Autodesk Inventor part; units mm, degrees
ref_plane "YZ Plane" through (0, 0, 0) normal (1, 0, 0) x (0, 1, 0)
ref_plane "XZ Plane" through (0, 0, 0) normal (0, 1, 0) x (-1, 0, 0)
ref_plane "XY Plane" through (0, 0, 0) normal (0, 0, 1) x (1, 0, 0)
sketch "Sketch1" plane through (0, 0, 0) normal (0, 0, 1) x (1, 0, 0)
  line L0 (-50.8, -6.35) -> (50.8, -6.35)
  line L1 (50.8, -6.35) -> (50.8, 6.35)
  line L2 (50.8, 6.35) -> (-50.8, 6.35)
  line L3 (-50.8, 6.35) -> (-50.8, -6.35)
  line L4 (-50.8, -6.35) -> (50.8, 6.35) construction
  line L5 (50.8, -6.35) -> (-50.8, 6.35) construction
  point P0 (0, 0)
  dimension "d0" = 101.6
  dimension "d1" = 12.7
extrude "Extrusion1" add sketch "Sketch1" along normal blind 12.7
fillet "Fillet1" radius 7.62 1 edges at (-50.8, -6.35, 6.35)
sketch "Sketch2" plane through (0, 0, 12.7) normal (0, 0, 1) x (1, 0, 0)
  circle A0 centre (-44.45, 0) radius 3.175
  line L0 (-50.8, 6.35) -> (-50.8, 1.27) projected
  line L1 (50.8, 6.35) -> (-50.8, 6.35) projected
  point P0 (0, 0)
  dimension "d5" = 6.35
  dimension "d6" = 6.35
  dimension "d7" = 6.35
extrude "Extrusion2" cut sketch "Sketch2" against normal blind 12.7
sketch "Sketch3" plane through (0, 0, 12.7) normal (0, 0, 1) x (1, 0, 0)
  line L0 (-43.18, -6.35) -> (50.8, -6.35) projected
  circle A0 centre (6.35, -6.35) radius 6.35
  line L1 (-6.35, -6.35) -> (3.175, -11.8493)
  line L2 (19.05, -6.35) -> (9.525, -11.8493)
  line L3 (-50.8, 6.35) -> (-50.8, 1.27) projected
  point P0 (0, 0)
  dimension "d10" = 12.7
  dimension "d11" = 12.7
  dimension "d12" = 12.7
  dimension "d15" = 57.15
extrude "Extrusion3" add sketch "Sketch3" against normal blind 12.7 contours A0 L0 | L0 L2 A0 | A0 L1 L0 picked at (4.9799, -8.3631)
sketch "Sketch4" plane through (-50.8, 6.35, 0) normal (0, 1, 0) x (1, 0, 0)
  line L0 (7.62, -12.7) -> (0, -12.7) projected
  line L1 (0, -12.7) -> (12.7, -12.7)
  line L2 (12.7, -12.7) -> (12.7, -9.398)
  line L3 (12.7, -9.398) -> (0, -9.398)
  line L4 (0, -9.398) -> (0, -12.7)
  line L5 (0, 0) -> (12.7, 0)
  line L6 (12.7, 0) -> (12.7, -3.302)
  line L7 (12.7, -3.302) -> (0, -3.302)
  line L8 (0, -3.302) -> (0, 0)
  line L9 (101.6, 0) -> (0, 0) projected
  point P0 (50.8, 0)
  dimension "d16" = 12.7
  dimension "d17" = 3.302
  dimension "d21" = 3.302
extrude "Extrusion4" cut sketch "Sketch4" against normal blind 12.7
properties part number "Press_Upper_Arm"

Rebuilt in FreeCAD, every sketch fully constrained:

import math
import FreeCAD as App
import Part
import Sketcher

V = App.Vector
Q = App.Units.Quantity


def edges_at(feature, points):
    """Names of the edges that pass closest to the given points."""
    edges = feature.Shape.Edges
    near = lambda p: min(range(len(edges)), key=lambda i: edges[i].distToShape(Part.Vertex(*p))[0])
    return sorted({f"Edge{near(p) + 1}" for p in points})

doc = App.newDocument("Part")
body = doc.addObject("PartDesign::Body", "Body")

# Sketch on XY plane
sketch1 = body.newObject("Sketcher::SketchObject", "Sketch")
sketch1.AttachmentSupport = (doc.getObject("XY_Plane"), [""])
sketch1.MapMode = "FlatFace"
sketch1.addGeometry(Part.LineSegment(V(-51, 6, 0), V(-51, -6, 0)), False)
sketch1.addGeometry(Part.LineSegment(V(-51, -6, 0), V(51, -6, 0)), False)
sketch1.addGeometry(Part.LineSegment(V(51, -6, 0), V(51, 6, 0)), False)
sketch1.addGeometry(Part.LineSegment(V(51, 6, 0), V(-51, 6, 0)), False)
sketch1.addConstraint(Sketcher.Constraint("Coincident", 0, 2, 1, 1))
sketch1.addConstraint(Sketcher.Constraint("Coincident", 1, 2, 2, 1))
sketch1.addConstraint(Sketcher.Constraint("Coincident", 2, 2, 3, 1))
sketch1.addConstraint(Sketcher.Constraint("Coincident", 3, 2, 0, 1))
sketch1.addConstraint(Sketcher.Constraint("Vertical", 0))
sketch1.addConstraint(Sketcher.Constraint("Horizontal", 1))
sketch1.addConstraint(Sketcher.Constraint("Vertical", 2))
sketch1.addConstraint(Sketcher.Constraint("Horizontal", 3))
sketch1.addConstraint(Sketcher.Constraint("Symmetric", 0, 2, 2, 2, -1, 1))
sketch1.addConstraint(Sketcher.Constraint("DistanceX", 1, 1, 1, 2, Q("4 in")))
sketch1.addConstraint(Sketcher.Constraint("DistanceY", 0, 2, 0, 1, Q("0.5 in")))
pad1 = body.newObject("PartDesign::Pad", "Pad")
pad1.Profile = sketch1
pad1.Length = Q("0.5 in")
doc.recompute()

fillet = body.newObject("PartDesign::Fillet", "Fillet")
fillet.Base = (pad1, edges_at(pad1, [(-50.8, -6.35, 6.35)]))
fillet.Radius = Q("0.3 in")

# Sketch on XY plane
sketch2 = body.newObject("Sketcher::SketchObject", "Sketch001")
sketch2.AttachmentSupport = (doc.getObject("XY_Plane"), [""])
sketch2.MapMode = "FlatFace"
sketch2.AttachmentOffset = App.Placement(V(0, 0, 0.5 * 25.4), App.Rotation())
sketch2.addGeometry(Part.Circle(V(-44.5, 0, 0), V(0, 0, 1), 3.2), False)
sketch2.addConstraint(Sketcher.Constraint("PointOnObject", 0, 3, -1))
sketch2.addConstraint(Sketcher.Constraint("Diameter", 0, Q("0.25 in")))
sketch2.addConstraint(Sketcher.Constraint("DistanceX", 0, 3, -1, 1, Q("1.75 in")))
pocket1 = body.newObject("PartDesign::Pocket", "Pocket")
pocket1.Profile = sketch2
pocket1.Length = Q("0.5 in")

# Sketch on XY plane
sketch3 = body.newObject("Sketcher::SketchObject", "Sketch002")
sketch3.AttachmentSupport = (doc.getObject("XY_Plane"), [""])
sketch3.MapMode = "FlatFace"
sketch3.AttachmentOffset = App.Placement(V(0, 0, 0.5 * 25.4), App.Rotation())
sketch3.addGeometry(Part.ArcOfCircle(Part.Circle(V(6, -6, 0), V(0, 0, 1), 6), math.radians(-120), math.radians(-60)), False)
sketch3.addGeometry(Part.LineSegment(V(10, -12, 0), V(19, -6, 0)), False)
sketch3.addGeometry(Part.LineSegment(V(19, -6, 0), V(-6, -6, 0)), False)
sketch3.addGeometry(Part.LineSegment(V(-6, -6, 0), V(3, -12, 0)), False)
sketch3.addConstraint(Sketcher.Constraint("Tangent", 0, 2, 1, 1))
sketch3.addConstraint(Sketcher.Constraint("Coincident", 1, 2, 2, 1))
sketch3.addConstraint(Sketcher.Constraint("Coincident", 2, 2, 3, 1))
sketch3.addConstraint(Sketcher.Constraint("Tangent", 3, 2, 0, 1))
sketch3.addConstraint(Sketcher.Constraint("Horizontal", 2))
sketch3.addConstraint(Sketcher.Constraint("Horizontal", 0, 3, 1, 2))
sketch3.addConstraint(Sketcher.Constraint("Horizontal", 0, 2, 3, 2))
sketch3.addConstraint(Sketcher.Constraint("Radius", 0, Q("0.25 in")))
sketch3.addConstraint(Sketcher.Constraint("DistanceX", 0, 3, 1, 2, Q("0.5 in")))
sketch3.addConstraint(Sketcher.Constraint("DistanceX", -1, 1, 0, 3, Q("0.25 in")))
sketch3.addConstraint(Sketcher.Constraint("DistanceY", 0, 3, -1, 1, Q("0.25 in")))
pad2 = body.newObject("PartDesign::Pad", "Pad001")
pad2.Profile = sketch3
pad2.Length = Q("0.5 in")
pad2.Reversed = True

# Sketch on XZ plane
sketch4 = body.newObject("Sketcher::SketchObject", "Sketch003")
sketch4.AttachmentSupport = (doc.getObject("XZ_Plane"), [""])
sketch4.MapMode = "FlatFace"
sketch4.AttachmentOffset = App.Placement(V(0, 0, -0.25 * 25.4), App.Rotation())
sketch4.addGeometry(Part.LineSegment(V(-50.8, 12.7, 0), V(-38.1, 12.7, 0)), False)
sketch4.addGeometry(Part.LineSegment(V(-38.1, 12.7, 0), V(-38.1, 9.4, 0)), False)
sketch4.addGeometry(Part.LineSegment(V(-38.1, 9.4, 0), V(-50.8, 9.4, 0)), False)
sketch4.addGeometry(Part.LineSegment(V(-50.8, 9.4, 0), V(-50.8, 12.7, 0)), False)
sketch4.addGeometry(Part.LineSegment(V(-38.1, 0, 0), V(-50.8, 0, 0)), False)
sketch4.addGeometry(Part.LineSegment(V(-50.8, 0, 0), V(-50.8, 3.3, 0)), False)
sketch4.addGeometry(Part.LineSegment(V(-50.8, 3.3, 0), V(-38.1, 3.3, 0)), False)
sketch4.addGeometry(Part.LineSegment(V(-38.1, 3.3, 0), V(-38.1, 0, 0)), False)
sketch4.addConstraint(Sketcher.Constraint("Coincident", 0, 2, 1, 1))
sketch4.addConstraint(Sketcher.Constraint("Coincident", 1, 2, 2, 1))
sketch4.addConstraint(Sketcher.Constraint("Coincident", 2, 2, 3, 1))
sketch4.addConstraint(Sketcher.Constraint("Coincident", 3, 2, 0, 1))
sketch4.addConstraint(Sketcher.Constraint("Coincident", 4, 2, 5, 1))
sketch4.addConstraint(Sketcher.Constraint("Coincident", 5, 2, 6, 1))
sketch4.addConstraint(Sketcher.Constraint("Coincident", 6, 2, 7, 1))
sketch4.addConstraint(Sketcher.Constraint("Coincident", 7, 2, 4, 1))
sketch4.addConstraint(Sketcher.Constraint("Horizontal", 0))
sketch4.addConstraint(Sketcher.Constraint("Vertical", 1))
sketch4.addConstraint(Sketcher.Constraint("Horizontal", 2))
sketch4.addConstraint(Sketcher.Constraint("Vertical", 3))
sketch4.addConstraint(Sketcher.Constraint("Horizontal", 4))
sketch4.addConstraint(Sketcher.Constraint("Vertical", 5))
sketch4.addConstraint(Sketcher.Constraint("Horizontal", 6))
sketch4.addConstraint(Sketcher.Constraint("Vertical", 7))
sketch4.addConstraint(Sketcher.Constraint("PointOnObject", 4, 2, -1))
sketch4.addConstraint(Sketcher.Constraint("Vertical", 3, 2, 4, 2))
sketch4.addConstraint(Sketcher.Constraint("Vertical", 1, 2, 6, 2))
sketch4.addConstraint(Sketcher.Constraint("Equal", 3, 5))
sketch4.addConstraint(Sketcher.Constraint("DistanceX", 0, 1, 0, 2, Q("0.5 in")))
sketch4.addConstraint(Sketcher.Constraint("DistanceY", 1, 2, 1, 1, Q("0.13 in")))
sketch4.addConstraint(Sketcher.Constraint("DistanceY", -1, 1, 0, 2, Q("0.5 in")))
sketch4.addConstraint(Sketcher.Constraint("DistanceX", 2, 2, -1, 1, Q("2 in")))
pocket2 = body.newObject("PartDesign::Pocket", "Pocket001")
pocket2.Profile = sketch4
pocket2.Length = Q("0.5 in")
pocket2.Reversed = True

doc.recompute()
